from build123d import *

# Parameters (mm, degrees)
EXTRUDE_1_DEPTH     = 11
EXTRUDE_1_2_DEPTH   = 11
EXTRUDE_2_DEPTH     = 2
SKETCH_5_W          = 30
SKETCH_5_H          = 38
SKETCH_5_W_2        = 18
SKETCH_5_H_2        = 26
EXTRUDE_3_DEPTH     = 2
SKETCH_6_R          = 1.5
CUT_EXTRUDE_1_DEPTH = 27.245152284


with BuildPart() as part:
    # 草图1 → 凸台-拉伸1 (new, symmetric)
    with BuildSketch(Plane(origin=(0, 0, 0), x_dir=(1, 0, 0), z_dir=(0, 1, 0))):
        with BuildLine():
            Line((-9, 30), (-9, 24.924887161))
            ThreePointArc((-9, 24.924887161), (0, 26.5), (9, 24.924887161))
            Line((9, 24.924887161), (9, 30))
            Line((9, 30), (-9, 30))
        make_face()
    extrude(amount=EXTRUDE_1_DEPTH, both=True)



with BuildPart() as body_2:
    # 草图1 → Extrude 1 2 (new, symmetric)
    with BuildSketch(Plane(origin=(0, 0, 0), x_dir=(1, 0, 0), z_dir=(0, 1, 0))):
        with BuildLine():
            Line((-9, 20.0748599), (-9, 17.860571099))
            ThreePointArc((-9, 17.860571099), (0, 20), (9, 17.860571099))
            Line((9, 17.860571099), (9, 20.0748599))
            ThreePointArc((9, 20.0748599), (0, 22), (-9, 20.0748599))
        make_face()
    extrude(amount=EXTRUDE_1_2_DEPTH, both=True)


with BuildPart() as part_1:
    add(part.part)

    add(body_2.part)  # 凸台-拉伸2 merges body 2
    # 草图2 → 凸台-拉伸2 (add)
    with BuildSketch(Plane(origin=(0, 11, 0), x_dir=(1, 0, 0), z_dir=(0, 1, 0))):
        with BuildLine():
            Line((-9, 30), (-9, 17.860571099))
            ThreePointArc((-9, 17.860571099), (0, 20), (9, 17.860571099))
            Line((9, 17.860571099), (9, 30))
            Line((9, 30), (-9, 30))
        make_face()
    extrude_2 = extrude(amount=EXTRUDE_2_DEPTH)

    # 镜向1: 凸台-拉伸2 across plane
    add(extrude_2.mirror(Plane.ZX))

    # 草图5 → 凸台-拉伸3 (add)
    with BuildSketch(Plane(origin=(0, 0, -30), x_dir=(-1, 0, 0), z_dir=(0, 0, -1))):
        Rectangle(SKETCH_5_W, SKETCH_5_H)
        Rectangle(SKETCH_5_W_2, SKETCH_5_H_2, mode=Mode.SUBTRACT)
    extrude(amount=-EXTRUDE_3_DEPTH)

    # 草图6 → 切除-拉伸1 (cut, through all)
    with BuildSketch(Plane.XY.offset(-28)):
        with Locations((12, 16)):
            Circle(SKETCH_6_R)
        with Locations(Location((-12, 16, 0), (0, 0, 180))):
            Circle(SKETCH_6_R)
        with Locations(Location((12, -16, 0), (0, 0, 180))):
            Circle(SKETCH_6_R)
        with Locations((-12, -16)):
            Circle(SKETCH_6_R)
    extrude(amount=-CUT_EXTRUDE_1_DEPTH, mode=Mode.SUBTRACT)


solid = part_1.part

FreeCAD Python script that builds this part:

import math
import FreeCAD as App
import Part
import Sketcher
Q = App.Units.Quantity


def add_polygon(sketch, points):
    """Adds a closed chain of lines whose ends are joined by coincident constraints."""
    first, n = sketch.GeometryCount, len(points)
    for a, b in zip(points, points[1:] + points[:1]):
        sketch.addGeometry(Part.LineSegment(App.Vector(*a, 0), App.Vector(*b, 0)), False)
    for i in range(n):
        sketch.addConstraint(Sketcher.Constraint("Coincident", first + i, 2, first + (i + 1) % n, 1))

doc = App.newDocument("Part")
body = doc.addObject("PartDesign::Body", "Body")

# Sketch on XZ plane
sketch1 = body.newObject("Sketcher::SketchObject", "Sketch")
sketch1.AttachmentSupport = (doc.getObject("XZ_Plane"), [""])
sketch1.MapMode = "FlatFace"
sketch1.addGeometry([
    Part.LineSegment(App.Vector(-9, -30, 0), App.Vector(-9, -25, 0)),
    Part.ArcOfCircle(Part.Circle(App.Vector(0, 0, 0), App.Vector(0, 0, 1), 26), math.radians(-110), math.radians(-70)),
    Part.LineSegment(App.Vector(9, -25, 0), App.Vector(9, -30, 0)),
    Part.LineSegment(App.Vector(9, -30, 0), App.Vector(-9, -30, 0)),
], False)
sketch1.addConstraint([
    Sketcher.Constraint("Coincident", 0, 2, 1, 1),
    Sketcher.Constraint("Coincident", 1, 2, 2, 1),
    Sketcher.Constraint("Coincident", 2, 2, 3, 1),
    Sketcher.Constraint("Coincident", 3, 2, 0, 1),
    Sketcher.Constraint("Vertical", 0),
    Sketcher.Constraint("Vertical", 2),
    Sketcher.Constraint("Horizontal", 3),
    Sketcher.Constraint("Coincident", 1, 3, -1, 1),
    Sketcher.Constraint("Horizontal", 0, 2, 1, 2),
    Sketcher.Constraint("Radius", 1, Q("26.5 mm")),
    Sketcher.Constraint("DistanceX", 3, 2, 3, 1, Q("18 mm")),
    Sketcher.Constraint("DistanceY", 2, 2, -1, 1, Q("30 mm")),
])
pad1 = body.newObject("PartDesign::Pad", "Pad")
pad1.Profile = sketch1
pad1.Length = 22
pad1.Midplane = True
body2 = doc.addObject("PartDesign::Body", "Body001")

# Sketch on XZ plane
sketch2 = body2.newObject("Sketcher::SketchObject", "Sketch001")
sketch2.AttachmentSupport = (doc.getObject("XZ_Plane001"), [""])
sketch2.MapMode = "FlatFace"
sketch2.addGeometry([
    Part.LineSegment(App.Vector(-9, -20.1, 0), App.Vector(-9, -17.9, 0)),
    Part.ArcOfCircle(Part.Circle(App.Vector(0, 0, 0), App.Vector(0, 0, 1), 20), math.radians(-117), math.radians(-63)),
    Part.LineSegment(App.Vector(9, -17.9, 0), App.Vector(9, -20.1, 0)),
    Part.ArcOfCircle(Part.Circle(App.Vector(0, 0, 0), App.Vector(0, 0, 1), 22), math.radians(-114), math.radians(-66)),
], False)
sketch2.addConstraint([
    Sketcher.Constraint("Coincident", 0, 2, 1, 1),
    Sketcher.Constraint("Coincident", 1, 2, 2, 1),
    Sketcher.Constraint("Coincident", 2, 2, 3, 2),
    Sketcher.Constraint("Coincident", 3, 1, 0, 1),
    Sketcher.Constraint("Vertical", 0),
    Sketcher.Constraint("Vertical", 2),
    Sketcher.Constraint("Coincident", 1, 3, -1, 1),
    Sketcher.Constraint("Coincident", 3, 3, -1, 1),
    Sketcher.Constraint("Horizontal", 0, 2, 1, 2),
    Sketcher.Constraint("Radius", 1, Q("20 mm")),
    Sketcher.Constraint("Radius", 3, Q("22 mm")),
    Sketcher.Constraint("DistanceX", 0, 2, -1, 1, Q("9 mm")),
])
pad2 = body2.newObject("PartDesign::Pad", "Pad001")
pad2.Profile = sketch2
pad2.Length = 22
pad2.Midplane = True
body.AllowCompound = True
doc.recompute()

boolean = body.newObject("PartDesign::Boolean", "Boolean")
boolean.Type = "Fuse"
boolean.addObjects([body2])

# Sketch on XZ plane
sketch3 = body.newObject("Sketcher::SketchObject", "Sketch002")
sketch3.AttachmentSupport = (doc.getObject("XZ_Plane"), [""])
sketch3.MapMode = "FlatFace"
sketch3.AttachmentOffset = App.Placement(App.Vector(0, 0, -11), App.Rotation())
sketch3.addGeometry([
    Part.LineSegment(App.Vector(-9, -30, 0), App.Vector(-9, -18, 0)),
    Part.ArcOfCircle(Part.Circle(App.Vector(0, 0, 0), App.Vector(0, 0, 1), 20), math.radians(-117), math.radians(-63)),
    Part.LineSegment(App.Vector(9, -18, 0), App.Vector(9, -30, 0)),
    Part.LineSegment(App.Vector(9, -30, 0), App.Vector(-9, -30, 0)),
], False)
sketch3.addConstraint([
    Sketcher.Constraint("Coincident", 0, 2, 1, 1),
    Sketcher.Constraint("Coincident", 1, 2, 2, 1),
    Sketcher.Constraint("Coincident", 2, 2, 3, 1),
    Sketcher.Constraint("Coincident", 3, 2, 0, 1),
    Sketcher.Constraint("Vertical", 0),
    Sketcher.Constraint("Vertical", 2),
    Sketcher.Constraint("Horizontal", 3),
    Sketcher.Constraint("Coincident", 1, 3, -1, 1),
    Sketcher.Constraint("Horizontal", 0, 2, 1, 2),
    Sketcher.Constraint("Radius", 1, Q("20 mm")),
    Sketcher.Constraint("DistanceX", 3, 2, 3, 1, Q("18 mm")),
    Sketcher.Constraint("DistanceY", 2, 2, -1, 1, Q("30 mm")),
])
pad3 = body.newObject("PartDesign::Pad", "Pad002")
pad3.Profile = sketch3
pad3.Length = 2
pad3.Reversed = True
doc.recompute()

mirrored = body.newObject("PartDesign::Mirrored", "Mirrored")
mirrored.Originals = [pad3]
mirrored.MirrorPlane = (doc.getObject("XZ_Plane"), [""])
body.Tip = mirrored

# Sketch on XY plane
sketch4 = body.newObject("Sketcher::SketchObject", "Sketch003")
sketch4.AttachmentSupport = (doc.getObject("XY_Plane"), [""])
sketch4.MapMode = "FlatFace"
sketch4.AttachmentOffset = App.Placement(App.Vector(0, 0, -30), App.Rotation())
add_polygon(sketch4, [(15, 19), (15, -19), (-15, -19), (-15, 19)])  # lines 0-3
add_polygon(sketch4, [(-9, -13), (9, -13), (9, 13), (-9, 13)])  # lines 4-7
sketch4.addConstraint([
    Sketcher.Constraint("Vertical", 0),
    Sketcher.Constraint("Horizontal", 1),
    Sketcher.Constraint("Vertical", 2),
    Sketcher.Constraint("Horizontal", 3),
    Sketcher.Constraint("Horizontal", 4),
    Sketcher.Constraint("Vertical", 5),
    Sketcher.Constraint("Horizontal", 6),
    Sketcher.Constraint("Vertical", 7),
    Sketcher.Constraint("Symmetric", 0, 2, 2, 2, -1, 1),
    Sketcher.Constraint("Symmetric", 4, 2, 6, 2, -1, 1),
    Sketcher.Constraint("DistanceX", 1, 2, 1, 1, Q("30 mm")),
    Sketcher.Constraint("DistanceX", 4, 1, 4, 2, Q("18 mm")),
    Sketcher.Constraint("DistanceY", 0, 2, 0, 1, Q("38 mm")),
    Sketcher.Constraint("DistanceY", 5, 1, 5, 2, Q("26 mm")),
])
pad4 = body.newObject("PartDesign::Pad", "Pad003")
pad4.Profile = sketch4
pad4.Length = 2

# Sketch on XY plane
sketch5 = body.newObject("Sketcher::SketchObject", "Sketch004")
sketch5.AttachmentSupport = (doc.getObject("XY_Plane"), [""])
sketch5.MapMode = "FlatFace"
sketch5.AttachmentOffset = App.Placement(App.Vector(0, 0, -28), App.Rotation())
sketch5.addGeometry([
    Part.Circle(App.Vector(12, 16, 0), App.Vector(0, 0, 1), 1.5),
    Part.Circle(App.Vector(-12, 16, 0), App.Vector(0, 0, 1), 1.5),
    Part.Circle(App.Vector(12, -16, 0), App.Vector(0, 0, 1), 1.5),
    Part.Circle(App.Vector(-12, -16, 0), App.Vector(0, 0, 1), 1.5),
], False)
sketch5.addConstraint([
    Sketcher.Constraint("Equal", 0, 1),
    Sketcher.Constraint("Equal", 1, 2),
    Sketcher.Constraint("Equal", 2, 3),
    Sketcher.Constraint("Symmetric", 1, 3, 2, 3, -1, 1),
    Sketcher.Constraint("Symmetric", 0, 3, 3, 3, -1, 1),
    Sketcher.Constraint("Symmetric", 0, 3, 1, 3, -2),
    Sketcher.Constraint("Diameter", 0, Q("3 mm")),
    Sketcher.Constraint("DistanceX", -1, 1, 0, 3, Q("12 mm")),
    Sketcher.Constraint("DistanceY", -1, 1, 0, 3, Q("16 mm")),
])
pocket1 = body.newObject("PartDesign::Pocket", "Pocket")
pocket1.Profile = sketch5
pocket1.Type = "ThroughAll"

doc.recompute()
